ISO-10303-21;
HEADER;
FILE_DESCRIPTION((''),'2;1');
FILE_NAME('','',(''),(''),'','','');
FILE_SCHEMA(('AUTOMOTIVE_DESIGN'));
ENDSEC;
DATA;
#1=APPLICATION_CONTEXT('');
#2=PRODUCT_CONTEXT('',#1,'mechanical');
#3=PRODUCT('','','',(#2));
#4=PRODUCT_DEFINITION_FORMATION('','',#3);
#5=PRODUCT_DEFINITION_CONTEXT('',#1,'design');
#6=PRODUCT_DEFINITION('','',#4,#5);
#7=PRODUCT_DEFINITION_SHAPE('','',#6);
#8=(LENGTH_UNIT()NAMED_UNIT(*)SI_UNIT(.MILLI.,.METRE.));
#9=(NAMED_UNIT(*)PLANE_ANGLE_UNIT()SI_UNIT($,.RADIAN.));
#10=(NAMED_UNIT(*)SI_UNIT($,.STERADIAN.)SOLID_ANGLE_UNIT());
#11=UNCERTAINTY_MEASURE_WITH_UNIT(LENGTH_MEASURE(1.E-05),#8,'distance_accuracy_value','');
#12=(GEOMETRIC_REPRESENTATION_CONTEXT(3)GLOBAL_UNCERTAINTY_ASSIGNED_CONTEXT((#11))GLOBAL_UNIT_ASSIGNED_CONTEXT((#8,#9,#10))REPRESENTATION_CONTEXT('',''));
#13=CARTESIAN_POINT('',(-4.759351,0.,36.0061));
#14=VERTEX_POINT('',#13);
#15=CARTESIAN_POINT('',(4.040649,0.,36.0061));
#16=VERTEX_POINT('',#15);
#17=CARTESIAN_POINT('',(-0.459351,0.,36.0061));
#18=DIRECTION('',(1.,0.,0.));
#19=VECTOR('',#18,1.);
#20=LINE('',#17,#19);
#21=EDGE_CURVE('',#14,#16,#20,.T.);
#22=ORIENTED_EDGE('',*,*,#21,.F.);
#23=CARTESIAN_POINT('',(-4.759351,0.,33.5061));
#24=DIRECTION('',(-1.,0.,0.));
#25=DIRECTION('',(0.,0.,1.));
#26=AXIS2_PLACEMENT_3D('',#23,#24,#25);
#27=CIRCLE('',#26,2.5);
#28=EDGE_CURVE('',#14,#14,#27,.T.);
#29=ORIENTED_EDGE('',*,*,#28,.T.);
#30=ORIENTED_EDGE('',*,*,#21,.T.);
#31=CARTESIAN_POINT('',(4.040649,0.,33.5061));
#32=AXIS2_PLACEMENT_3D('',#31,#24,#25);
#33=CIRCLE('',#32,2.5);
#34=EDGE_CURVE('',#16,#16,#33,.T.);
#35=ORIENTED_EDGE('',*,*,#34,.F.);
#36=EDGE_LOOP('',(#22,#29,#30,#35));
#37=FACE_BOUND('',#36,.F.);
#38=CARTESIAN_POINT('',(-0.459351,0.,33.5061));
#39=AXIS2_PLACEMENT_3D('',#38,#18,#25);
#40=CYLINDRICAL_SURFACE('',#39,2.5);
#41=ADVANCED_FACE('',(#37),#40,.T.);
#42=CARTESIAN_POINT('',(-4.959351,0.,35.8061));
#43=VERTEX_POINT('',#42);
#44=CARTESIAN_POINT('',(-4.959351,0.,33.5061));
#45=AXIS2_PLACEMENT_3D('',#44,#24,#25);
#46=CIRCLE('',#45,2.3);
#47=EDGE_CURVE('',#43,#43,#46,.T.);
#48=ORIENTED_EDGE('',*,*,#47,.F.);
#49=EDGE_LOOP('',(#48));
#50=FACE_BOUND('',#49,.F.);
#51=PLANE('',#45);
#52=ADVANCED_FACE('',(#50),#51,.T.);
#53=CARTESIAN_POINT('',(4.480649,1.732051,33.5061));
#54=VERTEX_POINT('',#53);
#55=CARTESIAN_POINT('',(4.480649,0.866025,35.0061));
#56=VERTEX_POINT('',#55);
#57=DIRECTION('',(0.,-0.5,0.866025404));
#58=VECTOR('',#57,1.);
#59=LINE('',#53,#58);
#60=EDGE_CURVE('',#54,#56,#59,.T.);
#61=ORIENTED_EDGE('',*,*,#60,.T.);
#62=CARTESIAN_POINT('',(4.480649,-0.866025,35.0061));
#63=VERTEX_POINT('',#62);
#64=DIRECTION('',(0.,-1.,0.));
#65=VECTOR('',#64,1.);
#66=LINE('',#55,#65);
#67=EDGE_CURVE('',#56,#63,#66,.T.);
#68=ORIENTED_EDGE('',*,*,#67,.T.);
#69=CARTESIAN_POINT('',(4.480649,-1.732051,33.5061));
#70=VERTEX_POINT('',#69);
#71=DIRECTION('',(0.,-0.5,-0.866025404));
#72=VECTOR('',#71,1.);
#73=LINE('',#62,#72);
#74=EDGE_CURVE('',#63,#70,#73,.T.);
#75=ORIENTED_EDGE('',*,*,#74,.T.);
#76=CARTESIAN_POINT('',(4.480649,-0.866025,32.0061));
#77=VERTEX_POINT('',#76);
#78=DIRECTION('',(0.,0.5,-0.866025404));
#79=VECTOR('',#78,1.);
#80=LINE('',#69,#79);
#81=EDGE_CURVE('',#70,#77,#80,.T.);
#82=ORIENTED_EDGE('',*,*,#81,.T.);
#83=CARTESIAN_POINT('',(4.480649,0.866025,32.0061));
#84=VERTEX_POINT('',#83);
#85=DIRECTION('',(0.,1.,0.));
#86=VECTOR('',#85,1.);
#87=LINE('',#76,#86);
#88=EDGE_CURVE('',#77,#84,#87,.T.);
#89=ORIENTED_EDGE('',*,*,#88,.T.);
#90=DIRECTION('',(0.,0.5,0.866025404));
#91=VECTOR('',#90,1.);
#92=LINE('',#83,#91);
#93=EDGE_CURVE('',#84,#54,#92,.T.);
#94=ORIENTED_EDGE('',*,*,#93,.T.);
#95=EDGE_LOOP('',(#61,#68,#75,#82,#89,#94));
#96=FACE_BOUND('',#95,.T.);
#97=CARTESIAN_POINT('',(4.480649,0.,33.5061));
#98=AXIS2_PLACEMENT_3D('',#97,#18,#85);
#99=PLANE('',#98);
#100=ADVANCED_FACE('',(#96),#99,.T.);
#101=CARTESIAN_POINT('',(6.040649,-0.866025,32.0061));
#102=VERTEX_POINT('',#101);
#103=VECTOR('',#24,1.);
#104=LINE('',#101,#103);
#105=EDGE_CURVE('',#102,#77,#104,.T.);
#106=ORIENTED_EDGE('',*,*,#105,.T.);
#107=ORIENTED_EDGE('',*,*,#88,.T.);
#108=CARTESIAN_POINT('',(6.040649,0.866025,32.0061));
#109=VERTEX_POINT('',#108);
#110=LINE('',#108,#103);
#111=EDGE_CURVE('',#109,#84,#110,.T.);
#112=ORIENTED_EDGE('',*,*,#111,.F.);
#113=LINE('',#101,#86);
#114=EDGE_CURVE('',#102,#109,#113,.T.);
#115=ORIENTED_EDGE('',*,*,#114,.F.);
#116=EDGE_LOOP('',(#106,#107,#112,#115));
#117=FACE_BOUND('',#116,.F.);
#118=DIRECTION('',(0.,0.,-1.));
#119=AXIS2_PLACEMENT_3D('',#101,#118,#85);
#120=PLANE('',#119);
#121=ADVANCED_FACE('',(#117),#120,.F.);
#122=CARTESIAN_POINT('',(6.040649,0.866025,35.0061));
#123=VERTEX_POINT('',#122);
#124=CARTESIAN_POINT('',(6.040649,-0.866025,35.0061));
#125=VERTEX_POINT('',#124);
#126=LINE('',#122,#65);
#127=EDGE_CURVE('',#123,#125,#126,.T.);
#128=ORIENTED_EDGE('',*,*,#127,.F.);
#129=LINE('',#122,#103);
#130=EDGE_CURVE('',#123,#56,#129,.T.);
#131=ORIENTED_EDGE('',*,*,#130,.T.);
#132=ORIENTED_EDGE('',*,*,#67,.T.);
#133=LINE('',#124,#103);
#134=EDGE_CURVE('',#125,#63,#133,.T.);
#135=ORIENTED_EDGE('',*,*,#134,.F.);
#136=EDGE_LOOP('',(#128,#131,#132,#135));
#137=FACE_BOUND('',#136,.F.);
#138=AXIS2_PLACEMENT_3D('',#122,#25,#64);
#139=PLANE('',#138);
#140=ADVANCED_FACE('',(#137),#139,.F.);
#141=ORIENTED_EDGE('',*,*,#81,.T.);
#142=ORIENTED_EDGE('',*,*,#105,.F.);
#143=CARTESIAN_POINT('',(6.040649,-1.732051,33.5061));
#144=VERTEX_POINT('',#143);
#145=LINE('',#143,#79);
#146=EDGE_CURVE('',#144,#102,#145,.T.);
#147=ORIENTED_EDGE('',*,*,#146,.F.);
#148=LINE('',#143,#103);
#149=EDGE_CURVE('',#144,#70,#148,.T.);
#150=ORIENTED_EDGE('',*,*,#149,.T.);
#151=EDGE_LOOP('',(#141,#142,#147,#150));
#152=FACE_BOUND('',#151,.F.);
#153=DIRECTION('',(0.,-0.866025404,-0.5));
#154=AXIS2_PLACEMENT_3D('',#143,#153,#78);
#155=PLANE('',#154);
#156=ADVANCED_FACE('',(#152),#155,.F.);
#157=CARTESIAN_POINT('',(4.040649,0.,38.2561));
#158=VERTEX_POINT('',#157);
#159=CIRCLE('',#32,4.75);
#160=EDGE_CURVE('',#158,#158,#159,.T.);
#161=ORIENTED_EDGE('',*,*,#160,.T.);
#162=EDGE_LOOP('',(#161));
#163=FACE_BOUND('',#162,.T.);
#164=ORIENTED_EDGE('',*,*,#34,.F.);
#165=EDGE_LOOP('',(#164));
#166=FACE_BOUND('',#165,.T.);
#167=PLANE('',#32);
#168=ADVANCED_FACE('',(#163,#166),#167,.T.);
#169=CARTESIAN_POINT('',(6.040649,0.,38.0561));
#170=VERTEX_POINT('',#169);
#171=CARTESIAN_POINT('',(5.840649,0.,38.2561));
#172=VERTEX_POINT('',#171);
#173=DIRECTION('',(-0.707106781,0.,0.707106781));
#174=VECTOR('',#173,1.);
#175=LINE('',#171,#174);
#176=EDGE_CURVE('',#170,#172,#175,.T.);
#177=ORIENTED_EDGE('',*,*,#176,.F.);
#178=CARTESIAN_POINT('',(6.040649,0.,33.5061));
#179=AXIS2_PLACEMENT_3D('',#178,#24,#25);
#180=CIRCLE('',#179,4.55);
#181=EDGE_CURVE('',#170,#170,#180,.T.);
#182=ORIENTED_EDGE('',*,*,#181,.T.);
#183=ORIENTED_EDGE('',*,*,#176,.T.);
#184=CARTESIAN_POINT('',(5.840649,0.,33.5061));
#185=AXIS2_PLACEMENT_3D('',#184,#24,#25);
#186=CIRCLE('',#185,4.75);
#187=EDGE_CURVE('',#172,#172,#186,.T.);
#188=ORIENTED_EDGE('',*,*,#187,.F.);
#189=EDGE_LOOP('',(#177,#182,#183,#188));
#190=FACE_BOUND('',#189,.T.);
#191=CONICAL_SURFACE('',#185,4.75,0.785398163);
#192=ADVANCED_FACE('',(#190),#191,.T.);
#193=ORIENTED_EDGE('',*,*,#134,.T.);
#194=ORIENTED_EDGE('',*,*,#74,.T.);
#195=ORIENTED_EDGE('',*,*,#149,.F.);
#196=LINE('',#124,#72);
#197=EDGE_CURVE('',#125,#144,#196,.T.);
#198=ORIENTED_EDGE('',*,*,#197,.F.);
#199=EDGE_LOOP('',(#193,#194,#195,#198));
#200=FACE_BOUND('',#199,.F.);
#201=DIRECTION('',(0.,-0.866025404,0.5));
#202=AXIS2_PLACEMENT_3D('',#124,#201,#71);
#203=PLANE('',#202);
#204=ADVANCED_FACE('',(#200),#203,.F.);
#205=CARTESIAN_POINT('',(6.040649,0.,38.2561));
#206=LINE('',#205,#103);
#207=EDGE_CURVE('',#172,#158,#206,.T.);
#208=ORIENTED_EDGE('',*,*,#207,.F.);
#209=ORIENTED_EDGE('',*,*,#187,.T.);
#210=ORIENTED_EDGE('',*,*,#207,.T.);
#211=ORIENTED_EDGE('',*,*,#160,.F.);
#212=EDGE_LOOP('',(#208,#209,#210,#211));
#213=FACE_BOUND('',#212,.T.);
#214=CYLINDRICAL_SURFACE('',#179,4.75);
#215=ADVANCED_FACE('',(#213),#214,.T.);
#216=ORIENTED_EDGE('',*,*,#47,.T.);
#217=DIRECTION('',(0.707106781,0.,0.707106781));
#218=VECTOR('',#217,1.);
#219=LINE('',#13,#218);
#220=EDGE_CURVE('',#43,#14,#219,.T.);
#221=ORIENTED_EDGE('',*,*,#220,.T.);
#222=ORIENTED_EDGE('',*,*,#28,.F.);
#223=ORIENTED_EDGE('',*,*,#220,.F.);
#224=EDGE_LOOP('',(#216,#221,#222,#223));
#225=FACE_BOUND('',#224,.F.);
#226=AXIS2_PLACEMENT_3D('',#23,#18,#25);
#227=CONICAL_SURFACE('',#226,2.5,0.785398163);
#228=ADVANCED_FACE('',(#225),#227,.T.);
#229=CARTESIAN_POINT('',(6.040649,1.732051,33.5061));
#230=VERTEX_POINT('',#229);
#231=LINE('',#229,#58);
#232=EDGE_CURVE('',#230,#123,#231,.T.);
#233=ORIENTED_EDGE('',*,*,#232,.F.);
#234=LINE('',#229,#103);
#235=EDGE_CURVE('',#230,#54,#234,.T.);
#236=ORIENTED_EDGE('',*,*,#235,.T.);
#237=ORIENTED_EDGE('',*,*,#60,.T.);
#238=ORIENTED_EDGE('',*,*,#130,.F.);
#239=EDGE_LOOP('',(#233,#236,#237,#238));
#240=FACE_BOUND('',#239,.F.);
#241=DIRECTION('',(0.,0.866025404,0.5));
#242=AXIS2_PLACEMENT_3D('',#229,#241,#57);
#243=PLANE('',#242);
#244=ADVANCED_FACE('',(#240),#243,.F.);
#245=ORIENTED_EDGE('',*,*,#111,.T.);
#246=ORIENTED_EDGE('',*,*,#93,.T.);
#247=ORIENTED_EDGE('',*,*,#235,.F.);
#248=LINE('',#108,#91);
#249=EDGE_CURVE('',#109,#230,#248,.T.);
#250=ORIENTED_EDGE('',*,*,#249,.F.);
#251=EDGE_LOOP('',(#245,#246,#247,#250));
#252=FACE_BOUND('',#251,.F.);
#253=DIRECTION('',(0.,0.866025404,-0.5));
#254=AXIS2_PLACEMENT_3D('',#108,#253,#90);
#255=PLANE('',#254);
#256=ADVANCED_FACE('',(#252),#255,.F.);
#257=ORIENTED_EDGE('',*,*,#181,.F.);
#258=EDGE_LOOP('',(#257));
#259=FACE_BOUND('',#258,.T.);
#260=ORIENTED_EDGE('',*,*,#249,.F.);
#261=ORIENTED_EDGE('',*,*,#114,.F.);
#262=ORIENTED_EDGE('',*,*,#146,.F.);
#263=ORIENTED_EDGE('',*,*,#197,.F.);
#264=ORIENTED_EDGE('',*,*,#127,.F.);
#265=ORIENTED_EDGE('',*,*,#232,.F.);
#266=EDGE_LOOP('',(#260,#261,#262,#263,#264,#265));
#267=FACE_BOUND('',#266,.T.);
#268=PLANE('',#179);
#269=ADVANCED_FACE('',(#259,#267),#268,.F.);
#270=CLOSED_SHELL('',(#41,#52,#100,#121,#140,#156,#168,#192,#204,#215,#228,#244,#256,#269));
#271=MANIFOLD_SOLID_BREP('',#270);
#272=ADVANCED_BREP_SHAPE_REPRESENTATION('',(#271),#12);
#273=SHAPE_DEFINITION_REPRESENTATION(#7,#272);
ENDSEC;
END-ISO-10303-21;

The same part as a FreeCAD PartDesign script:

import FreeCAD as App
import Part
import Sketcher
from FreeCAD import Vector
Q = App.Units.Quantity


def edges_at(feature, points):
    """Names of the edges that pass closest to the given points."""
    edges = feature.Shape.Edges
    near = lambda p: min(range(len(edges)), key=lambda i: edges[i].distToShape(Part.Vertex(*p))[0])
    return sorted({f"Edge{near(p) + 1}" for p in points})


def add_polygon(sketch, points):
    """Adds a closed chain of lines whose ends are joined by coincident constraints."""
    first, n = sketch.GeometryCount, len(points)
    for a, b in zip(points, points[1:] + points[:1]):
        sketch.addGeometry(Part.LineSegment(App.Vector(*a, 0), App.Vector(*b, 0)), False)
    for i in range(n):
        sketch.addConstraint(Sketcher.Constraint("Coincident", first + i, 2, first + (i + 1) % n, 1))

doc = App.newDocument("Part")
body = doc.addObject("PartDesign::Body", "Body")

sketch1 = doc.addObject("Sketcher::SketchObject", "Sketch")
body.addObject(sketch1)
sketch1.AttachmentSupport = (doc.XZ_Plane, [""])
sketch1.MapMode = "FlatFace"
add_polygon(sketch1, [(-4.959351, 36.0061), (-4.959351, 33.5061), (6.040649, 33.5061), (6.040649, 38.2561), (4.040649, 38.2561), (4.040649, 36.0061)])
sketch1.addGeometry(Part.LineSegment(Vector(6.040649, 33.5061, 0), Vector(-4.959351, 33.5061, 0)), True)
sketch1.addConstraint([
    Sketcher.Constraint("Vertical", 0),
    Sketcher.Constraint("Horizontal", 1),
    Sketcher.Constraint("Vertical", 2),
    Sketcher.Constraint("Horizontal", 3),
    Sketcher.Constraint("Vertical", 4),
    Sketcher.Constraint("Horizontal", 5),
    Sketcher.Constraint("Horizontal", 6),
    Sketcher.Constraint("Coincident", 6, 1, 1, 2),
    Sketcher.Constraint("Vertical", 5, 2, 6, 2),
    Sketcher.Constraint("DistanceX", 1, 1, 1, 2, 11.0),
    Sketcher.Constraint("DistanceX", 3, 2, 3, 1, 2.0),
    Sketcher.Constraint("DistanceY", 0, 2, 0, 1, 2.5),
    Sketcher.Constraint("DistanceY", 2, 1, 2, 2, 4.75),
    Sketcher.Constraint("DistanceY", -1, 1, 0, 2, 33.5061),
    Sketcher.Constraint("DistanceX", 0, 2, -1, 1, 4.959351),
])
revolution = doc.addObject("PartDesign::Revolution", "Revolution")
body.addObject(revolution)
revolution.Profile = sketch1
revolution.ReferenceAxis = (sketch1, ["Axis0"])
revolution.Angle = 360
doc.recompute()

chamfer = doc.addObject("PartDesign::Chamfer", "Chamfer")
body.addObject(chamfer)
chamfer.Base = (revolution, edges_at(revolution, [(-4.959, 0, 31.006), (6.041, 0, 28.756)]))
chamfer.Size = 0.2

sketch2 = doc.addObject("Sketcher::SketchObject", "Sketch001")
body.addObject(sketch2)
sketch2.AttachmentSupport = (doc.YZ_Plane, [""])
sketch2.MapMode = "FlatFace"
sketch2.AttachmentOffset = App.Placement(Vector(0, 0, 6.040649), App.Rotation())
add_polygon(sketch2, [(0.866025, 35.0061), (-0.866025, 35.0061), (-1.732051, 33.5061), (-0.866025, 32.0061), (0.866025, 32.0061), (1.732051, 33.5061)])
sketch2.addConstraint([
    Sketcher.Constraint("Horizontal", 0),
    Sketcher.Constraint("Horizontal", 3),
    Sketcher.Constraint("Symmetric", 1, 2, 4, 2, -2),
    Sketcher.Constraint("Parallel", 1, 4),
    Sketcher.Constraint("Parallel", 2, 5),
    Sketcher.Constraint("Vertical", 0, 2, 2, 2),
    Sketcher.Constraint("Vertical", 3, 2, 5, 2),
    Sketcher.Constraint("Angle", 1, Q("-120 deg")),
    Sketcher.Constraint("DistanceY", 2, 2, 0, 2, 3.0),
    Sketcher.Constraint("DistanceX", 0, 2, 0, 1, 1.732051),
    Sketcher.Constraint("DistanceY", -1, 1, 0, 2, 35.0061),
])
pocket1 = doc.addObject("PartDesign::Pocket", "Pocket")
body.addObject(pocket1)
pocket1.Profile = sketch2
pocket1.Length = 1.56

doc.recompute()
